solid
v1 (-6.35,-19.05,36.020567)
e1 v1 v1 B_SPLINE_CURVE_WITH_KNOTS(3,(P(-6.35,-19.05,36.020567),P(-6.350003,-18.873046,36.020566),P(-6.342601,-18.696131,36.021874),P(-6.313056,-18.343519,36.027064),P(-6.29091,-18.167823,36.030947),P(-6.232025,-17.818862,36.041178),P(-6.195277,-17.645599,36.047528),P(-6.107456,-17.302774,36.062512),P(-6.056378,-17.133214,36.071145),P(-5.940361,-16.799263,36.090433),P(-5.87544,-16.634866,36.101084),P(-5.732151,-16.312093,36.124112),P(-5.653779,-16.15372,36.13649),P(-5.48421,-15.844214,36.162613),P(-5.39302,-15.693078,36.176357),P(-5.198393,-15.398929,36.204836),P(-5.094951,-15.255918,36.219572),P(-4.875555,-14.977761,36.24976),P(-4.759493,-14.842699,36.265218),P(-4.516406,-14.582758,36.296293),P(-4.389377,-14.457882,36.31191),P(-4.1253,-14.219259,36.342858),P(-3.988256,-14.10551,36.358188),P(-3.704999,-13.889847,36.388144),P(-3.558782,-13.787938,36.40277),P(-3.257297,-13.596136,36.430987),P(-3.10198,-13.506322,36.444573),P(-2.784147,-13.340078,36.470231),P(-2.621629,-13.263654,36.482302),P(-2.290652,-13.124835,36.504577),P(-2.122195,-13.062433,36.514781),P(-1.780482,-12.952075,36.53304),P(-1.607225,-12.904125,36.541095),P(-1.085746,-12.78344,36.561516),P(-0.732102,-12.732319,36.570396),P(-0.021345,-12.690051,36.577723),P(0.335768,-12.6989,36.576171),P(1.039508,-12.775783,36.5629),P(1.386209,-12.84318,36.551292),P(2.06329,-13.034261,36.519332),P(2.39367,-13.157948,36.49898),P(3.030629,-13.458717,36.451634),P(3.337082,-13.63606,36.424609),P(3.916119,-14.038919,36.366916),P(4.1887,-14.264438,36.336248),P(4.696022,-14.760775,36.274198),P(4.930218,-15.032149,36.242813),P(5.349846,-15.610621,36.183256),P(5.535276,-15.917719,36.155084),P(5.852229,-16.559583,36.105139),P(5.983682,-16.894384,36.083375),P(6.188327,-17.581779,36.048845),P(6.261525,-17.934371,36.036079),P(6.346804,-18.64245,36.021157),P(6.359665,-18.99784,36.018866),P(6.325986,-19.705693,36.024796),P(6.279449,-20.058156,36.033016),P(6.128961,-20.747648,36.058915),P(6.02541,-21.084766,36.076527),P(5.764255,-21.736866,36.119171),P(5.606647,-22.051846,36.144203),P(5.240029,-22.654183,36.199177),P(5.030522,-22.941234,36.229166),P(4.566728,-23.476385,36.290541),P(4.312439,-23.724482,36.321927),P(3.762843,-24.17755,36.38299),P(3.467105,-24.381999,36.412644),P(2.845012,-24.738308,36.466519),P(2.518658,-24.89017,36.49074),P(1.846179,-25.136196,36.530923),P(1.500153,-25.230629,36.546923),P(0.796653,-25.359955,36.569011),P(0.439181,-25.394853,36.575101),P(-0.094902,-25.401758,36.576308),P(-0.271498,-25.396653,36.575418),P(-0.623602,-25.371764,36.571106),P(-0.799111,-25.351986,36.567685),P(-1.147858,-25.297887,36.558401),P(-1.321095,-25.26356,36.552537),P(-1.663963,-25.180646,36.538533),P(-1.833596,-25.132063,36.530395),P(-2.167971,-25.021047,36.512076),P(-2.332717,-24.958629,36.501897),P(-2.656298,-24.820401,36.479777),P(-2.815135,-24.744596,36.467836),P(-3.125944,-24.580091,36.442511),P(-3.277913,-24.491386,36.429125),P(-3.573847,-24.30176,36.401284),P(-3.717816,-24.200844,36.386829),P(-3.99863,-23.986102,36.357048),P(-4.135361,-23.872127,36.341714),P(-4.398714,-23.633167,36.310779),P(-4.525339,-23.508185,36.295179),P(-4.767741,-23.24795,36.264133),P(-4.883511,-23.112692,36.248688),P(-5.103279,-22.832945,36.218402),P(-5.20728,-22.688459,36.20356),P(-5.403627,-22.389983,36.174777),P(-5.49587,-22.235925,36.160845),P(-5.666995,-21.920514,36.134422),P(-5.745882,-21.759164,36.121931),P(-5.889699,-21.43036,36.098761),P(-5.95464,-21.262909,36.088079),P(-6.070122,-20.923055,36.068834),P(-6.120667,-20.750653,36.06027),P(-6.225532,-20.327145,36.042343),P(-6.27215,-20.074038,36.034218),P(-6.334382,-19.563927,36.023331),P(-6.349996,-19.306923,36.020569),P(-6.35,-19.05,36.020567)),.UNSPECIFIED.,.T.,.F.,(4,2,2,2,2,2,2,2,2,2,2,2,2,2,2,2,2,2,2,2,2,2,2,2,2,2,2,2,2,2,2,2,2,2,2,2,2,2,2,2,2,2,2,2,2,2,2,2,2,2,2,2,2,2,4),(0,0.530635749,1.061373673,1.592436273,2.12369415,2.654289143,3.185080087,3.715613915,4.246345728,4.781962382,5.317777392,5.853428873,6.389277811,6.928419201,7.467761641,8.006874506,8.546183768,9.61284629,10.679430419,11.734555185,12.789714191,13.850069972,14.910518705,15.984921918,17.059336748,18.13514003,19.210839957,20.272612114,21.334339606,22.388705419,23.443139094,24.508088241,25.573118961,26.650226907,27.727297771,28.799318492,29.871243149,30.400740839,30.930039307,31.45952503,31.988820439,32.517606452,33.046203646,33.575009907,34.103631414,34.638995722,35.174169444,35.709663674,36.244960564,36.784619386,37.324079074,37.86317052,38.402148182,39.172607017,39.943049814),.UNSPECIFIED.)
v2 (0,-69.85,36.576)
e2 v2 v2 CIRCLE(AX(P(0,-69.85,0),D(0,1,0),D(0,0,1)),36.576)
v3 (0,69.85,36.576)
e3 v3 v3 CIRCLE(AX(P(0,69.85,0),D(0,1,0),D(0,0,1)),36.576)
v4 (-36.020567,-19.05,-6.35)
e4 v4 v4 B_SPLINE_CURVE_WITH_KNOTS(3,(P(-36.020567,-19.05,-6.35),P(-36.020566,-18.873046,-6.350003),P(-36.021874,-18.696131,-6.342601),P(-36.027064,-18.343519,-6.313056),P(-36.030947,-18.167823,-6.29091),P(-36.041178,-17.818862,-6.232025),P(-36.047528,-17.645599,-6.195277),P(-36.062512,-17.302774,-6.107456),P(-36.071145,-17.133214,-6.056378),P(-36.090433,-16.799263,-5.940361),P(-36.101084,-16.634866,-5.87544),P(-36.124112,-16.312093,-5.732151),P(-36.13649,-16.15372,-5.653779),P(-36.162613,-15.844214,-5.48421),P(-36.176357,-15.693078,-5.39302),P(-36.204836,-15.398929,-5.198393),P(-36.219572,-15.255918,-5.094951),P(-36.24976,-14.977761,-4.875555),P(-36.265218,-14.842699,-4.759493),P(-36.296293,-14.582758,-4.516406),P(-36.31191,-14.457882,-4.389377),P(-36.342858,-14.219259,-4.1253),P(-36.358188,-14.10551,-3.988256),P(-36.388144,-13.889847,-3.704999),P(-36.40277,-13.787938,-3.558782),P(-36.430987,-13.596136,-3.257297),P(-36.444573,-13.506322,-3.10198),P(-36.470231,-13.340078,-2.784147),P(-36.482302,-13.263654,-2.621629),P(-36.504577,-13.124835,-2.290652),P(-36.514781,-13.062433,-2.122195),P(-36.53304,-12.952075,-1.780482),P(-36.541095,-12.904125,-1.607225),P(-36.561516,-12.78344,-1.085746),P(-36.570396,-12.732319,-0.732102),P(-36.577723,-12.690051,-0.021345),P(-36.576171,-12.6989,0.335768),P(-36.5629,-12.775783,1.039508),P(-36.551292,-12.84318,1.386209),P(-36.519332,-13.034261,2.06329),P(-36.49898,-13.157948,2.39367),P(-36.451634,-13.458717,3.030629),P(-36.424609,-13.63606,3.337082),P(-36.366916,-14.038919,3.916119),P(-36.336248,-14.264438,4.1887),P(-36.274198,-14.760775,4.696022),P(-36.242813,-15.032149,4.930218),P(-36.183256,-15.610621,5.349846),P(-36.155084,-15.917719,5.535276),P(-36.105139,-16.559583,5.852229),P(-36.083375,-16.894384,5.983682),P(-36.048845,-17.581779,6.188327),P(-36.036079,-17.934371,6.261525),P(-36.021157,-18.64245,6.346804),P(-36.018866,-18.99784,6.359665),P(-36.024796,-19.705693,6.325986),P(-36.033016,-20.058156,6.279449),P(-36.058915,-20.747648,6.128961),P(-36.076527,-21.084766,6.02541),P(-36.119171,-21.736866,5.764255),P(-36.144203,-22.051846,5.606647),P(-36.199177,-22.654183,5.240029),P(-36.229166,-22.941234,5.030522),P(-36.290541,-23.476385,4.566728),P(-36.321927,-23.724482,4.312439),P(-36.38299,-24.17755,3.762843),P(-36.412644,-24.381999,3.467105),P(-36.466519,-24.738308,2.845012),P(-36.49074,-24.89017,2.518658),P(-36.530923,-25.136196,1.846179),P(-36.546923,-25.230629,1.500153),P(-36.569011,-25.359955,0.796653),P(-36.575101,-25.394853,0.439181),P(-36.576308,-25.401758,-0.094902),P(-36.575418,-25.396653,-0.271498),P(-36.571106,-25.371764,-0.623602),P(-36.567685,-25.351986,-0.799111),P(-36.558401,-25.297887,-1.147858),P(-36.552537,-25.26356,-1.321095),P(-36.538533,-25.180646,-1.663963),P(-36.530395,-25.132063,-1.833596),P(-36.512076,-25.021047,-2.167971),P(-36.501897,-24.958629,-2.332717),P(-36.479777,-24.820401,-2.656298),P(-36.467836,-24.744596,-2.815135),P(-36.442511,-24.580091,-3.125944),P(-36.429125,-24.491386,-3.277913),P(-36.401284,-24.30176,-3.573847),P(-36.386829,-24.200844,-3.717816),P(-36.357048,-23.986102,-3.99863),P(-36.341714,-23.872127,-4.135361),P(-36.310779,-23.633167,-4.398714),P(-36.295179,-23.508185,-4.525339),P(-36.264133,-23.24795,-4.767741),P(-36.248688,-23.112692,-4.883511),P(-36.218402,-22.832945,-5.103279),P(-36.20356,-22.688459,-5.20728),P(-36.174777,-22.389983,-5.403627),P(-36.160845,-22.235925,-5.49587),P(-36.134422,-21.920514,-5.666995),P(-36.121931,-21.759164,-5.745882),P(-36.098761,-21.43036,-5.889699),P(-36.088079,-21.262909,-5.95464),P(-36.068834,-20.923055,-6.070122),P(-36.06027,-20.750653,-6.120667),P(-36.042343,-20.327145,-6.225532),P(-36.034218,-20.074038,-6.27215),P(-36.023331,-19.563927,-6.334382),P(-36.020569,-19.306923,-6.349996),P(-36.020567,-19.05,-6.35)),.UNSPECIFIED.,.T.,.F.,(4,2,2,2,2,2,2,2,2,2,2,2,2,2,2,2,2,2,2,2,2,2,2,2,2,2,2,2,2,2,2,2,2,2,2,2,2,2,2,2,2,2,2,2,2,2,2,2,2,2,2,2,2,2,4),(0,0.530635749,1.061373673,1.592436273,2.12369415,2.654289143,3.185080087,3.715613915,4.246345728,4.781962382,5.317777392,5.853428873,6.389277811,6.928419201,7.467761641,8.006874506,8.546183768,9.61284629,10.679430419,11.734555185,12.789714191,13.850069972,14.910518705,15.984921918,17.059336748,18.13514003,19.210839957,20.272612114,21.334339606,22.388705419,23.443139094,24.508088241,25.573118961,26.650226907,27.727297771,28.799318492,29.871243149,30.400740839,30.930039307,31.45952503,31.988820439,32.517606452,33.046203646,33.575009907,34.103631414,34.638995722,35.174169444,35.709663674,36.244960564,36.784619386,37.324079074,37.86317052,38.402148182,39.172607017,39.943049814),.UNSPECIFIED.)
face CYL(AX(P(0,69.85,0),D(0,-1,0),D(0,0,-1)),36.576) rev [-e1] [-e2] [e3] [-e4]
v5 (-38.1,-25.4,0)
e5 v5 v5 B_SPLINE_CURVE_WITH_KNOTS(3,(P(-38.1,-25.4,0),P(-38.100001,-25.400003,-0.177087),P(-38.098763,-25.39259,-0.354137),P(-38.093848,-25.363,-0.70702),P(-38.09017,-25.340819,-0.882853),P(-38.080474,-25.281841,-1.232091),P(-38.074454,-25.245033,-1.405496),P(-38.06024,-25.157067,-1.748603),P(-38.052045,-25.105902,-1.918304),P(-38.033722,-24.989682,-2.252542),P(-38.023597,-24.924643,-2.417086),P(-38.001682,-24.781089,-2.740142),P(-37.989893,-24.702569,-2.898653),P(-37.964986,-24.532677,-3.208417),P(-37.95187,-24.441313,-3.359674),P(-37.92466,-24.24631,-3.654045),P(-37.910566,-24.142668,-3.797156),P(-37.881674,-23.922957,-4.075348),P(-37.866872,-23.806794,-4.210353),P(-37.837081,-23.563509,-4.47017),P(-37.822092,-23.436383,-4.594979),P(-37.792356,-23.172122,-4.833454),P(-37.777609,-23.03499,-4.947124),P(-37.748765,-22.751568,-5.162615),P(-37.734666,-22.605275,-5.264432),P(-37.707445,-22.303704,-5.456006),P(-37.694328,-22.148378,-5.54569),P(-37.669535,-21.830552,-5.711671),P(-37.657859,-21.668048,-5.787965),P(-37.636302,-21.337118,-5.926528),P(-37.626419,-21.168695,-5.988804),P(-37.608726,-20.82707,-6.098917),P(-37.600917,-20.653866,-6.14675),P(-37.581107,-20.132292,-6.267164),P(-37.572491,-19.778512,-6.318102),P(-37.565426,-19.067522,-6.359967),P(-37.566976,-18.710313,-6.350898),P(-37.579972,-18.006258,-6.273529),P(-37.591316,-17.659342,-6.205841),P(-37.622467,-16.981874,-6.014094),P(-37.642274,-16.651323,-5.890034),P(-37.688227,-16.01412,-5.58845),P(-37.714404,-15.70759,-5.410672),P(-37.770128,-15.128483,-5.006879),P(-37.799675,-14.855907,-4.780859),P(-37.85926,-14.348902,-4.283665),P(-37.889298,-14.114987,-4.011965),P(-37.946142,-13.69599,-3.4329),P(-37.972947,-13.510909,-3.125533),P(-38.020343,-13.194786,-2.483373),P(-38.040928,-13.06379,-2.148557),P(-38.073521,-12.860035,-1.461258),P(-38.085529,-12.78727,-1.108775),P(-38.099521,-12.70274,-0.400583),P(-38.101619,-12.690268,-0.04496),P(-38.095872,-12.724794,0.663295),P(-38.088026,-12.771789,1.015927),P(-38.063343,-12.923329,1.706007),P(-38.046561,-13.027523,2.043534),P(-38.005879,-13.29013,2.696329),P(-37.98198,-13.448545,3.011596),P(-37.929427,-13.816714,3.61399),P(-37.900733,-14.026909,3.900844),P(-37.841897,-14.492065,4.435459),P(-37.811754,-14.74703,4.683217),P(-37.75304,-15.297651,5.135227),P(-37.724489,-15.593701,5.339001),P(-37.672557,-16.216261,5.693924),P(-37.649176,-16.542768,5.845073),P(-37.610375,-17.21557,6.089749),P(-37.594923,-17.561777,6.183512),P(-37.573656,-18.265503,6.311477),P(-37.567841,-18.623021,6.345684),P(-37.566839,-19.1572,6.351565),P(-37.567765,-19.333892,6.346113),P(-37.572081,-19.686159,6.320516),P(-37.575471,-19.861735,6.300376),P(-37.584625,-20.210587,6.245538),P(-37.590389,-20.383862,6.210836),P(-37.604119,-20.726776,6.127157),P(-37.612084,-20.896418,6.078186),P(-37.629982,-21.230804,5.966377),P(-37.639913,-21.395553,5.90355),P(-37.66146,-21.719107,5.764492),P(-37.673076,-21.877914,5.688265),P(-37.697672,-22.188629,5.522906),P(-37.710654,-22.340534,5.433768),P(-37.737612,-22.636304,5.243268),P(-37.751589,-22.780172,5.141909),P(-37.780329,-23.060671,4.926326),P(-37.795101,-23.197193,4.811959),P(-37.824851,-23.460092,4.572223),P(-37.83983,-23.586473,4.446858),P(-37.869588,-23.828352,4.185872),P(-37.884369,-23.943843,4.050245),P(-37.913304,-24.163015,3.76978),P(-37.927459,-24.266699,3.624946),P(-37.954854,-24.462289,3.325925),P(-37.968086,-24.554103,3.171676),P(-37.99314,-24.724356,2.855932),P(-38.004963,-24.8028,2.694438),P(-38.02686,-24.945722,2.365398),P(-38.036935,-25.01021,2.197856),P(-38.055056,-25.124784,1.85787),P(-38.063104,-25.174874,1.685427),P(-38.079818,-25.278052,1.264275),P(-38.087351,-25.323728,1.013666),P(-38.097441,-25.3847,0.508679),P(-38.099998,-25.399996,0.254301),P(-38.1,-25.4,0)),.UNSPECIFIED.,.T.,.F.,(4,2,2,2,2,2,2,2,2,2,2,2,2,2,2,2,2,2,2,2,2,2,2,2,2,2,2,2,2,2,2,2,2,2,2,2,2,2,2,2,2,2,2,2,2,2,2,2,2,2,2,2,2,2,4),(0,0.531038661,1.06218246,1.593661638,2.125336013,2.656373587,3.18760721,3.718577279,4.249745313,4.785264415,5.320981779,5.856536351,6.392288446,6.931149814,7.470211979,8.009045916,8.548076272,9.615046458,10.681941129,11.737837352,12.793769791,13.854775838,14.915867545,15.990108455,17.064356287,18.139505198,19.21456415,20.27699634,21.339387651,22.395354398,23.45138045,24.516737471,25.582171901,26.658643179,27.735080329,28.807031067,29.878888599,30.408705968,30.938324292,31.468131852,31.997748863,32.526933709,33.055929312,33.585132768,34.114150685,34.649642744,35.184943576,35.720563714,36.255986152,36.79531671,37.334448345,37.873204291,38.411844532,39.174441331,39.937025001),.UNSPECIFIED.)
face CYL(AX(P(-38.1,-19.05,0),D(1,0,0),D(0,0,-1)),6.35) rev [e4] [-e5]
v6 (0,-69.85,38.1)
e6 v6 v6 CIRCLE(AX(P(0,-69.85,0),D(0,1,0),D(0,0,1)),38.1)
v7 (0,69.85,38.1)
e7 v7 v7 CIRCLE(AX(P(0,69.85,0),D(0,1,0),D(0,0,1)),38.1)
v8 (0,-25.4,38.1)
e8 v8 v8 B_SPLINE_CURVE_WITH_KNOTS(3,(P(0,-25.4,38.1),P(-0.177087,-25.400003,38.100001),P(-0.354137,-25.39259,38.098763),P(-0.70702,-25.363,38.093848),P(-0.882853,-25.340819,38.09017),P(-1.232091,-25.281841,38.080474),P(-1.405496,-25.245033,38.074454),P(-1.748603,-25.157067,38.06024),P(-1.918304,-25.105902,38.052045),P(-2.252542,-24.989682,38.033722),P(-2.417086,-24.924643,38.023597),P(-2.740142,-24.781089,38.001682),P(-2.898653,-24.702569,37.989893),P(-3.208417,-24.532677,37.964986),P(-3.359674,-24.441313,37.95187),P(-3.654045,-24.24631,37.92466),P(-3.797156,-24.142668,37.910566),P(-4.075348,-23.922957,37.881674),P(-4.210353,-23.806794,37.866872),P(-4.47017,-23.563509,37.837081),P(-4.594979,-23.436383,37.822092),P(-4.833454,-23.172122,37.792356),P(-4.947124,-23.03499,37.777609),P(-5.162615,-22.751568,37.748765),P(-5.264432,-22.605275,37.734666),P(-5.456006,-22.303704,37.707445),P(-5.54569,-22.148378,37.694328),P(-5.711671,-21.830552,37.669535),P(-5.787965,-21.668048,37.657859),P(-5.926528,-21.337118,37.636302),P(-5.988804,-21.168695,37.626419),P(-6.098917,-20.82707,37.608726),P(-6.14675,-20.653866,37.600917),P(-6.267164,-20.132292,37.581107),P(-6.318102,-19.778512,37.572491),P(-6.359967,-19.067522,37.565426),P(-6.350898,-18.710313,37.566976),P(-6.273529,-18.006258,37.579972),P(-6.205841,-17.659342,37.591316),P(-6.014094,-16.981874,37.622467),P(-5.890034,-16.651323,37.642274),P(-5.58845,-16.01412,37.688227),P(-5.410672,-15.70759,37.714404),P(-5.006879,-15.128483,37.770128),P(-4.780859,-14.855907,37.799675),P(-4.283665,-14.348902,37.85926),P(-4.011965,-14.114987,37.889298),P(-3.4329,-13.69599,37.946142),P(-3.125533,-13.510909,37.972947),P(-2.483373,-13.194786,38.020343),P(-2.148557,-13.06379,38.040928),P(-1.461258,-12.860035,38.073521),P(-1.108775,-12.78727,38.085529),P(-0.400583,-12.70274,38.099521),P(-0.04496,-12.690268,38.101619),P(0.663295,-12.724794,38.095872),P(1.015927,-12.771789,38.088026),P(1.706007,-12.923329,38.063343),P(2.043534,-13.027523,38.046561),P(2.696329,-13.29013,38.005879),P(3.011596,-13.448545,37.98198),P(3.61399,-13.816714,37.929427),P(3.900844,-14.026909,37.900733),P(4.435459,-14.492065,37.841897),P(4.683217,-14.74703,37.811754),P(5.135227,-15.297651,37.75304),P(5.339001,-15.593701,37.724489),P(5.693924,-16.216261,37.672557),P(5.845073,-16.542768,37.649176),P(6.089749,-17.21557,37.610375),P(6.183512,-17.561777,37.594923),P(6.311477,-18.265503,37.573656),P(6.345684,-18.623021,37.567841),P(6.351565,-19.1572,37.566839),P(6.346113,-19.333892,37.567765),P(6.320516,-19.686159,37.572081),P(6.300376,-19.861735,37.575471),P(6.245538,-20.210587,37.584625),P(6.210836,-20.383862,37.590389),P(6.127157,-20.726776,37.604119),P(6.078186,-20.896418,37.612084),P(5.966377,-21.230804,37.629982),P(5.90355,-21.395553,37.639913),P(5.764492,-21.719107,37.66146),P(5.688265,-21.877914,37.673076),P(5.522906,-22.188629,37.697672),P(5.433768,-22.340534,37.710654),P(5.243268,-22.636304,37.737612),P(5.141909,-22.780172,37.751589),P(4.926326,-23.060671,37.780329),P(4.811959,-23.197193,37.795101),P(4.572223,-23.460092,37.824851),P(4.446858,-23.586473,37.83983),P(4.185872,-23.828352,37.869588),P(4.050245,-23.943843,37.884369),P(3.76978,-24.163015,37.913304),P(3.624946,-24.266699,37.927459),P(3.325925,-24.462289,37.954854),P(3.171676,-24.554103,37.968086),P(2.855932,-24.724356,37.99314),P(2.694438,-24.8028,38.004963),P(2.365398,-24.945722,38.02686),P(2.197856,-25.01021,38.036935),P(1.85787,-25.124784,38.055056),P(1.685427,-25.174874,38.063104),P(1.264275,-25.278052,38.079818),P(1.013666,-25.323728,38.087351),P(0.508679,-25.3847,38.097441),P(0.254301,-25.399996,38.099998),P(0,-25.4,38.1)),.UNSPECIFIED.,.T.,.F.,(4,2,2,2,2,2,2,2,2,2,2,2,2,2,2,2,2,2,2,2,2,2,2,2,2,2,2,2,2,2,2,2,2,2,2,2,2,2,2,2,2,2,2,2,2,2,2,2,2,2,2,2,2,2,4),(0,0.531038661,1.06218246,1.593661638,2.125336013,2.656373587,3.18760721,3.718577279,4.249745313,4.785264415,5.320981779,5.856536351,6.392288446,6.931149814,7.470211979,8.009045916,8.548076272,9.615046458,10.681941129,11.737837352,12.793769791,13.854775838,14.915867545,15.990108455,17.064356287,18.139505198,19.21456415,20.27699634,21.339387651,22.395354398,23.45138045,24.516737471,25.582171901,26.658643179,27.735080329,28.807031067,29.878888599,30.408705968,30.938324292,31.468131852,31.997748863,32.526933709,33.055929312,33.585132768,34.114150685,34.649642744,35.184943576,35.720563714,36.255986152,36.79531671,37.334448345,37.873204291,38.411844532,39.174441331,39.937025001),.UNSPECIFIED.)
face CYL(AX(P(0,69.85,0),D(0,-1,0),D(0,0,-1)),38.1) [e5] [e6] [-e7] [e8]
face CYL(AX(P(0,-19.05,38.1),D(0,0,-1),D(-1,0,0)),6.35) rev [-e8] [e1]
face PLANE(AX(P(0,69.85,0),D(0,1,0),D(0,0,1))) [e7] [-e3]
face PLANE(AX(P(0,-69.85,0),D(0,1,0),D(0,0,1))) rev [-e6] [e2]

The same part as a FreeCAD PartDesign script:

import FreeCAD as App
import Part
import Sketcher
Q = App.Units.Quantity

doc = App.newDocument("Part")
body = doc.addObject("PartDesign::Body", "Body")

# Sketch on XZ plane
sketch1 = body.newObject("Sketcher::SketchObject", "Sketch")
sketch1.AttachmentSupport = (doc.getObject("XZ_Plane"), [""])
sketch1.MapMode = "FlatFace"
sketch1.addGeometry([
    Part.Circle(App.Vector(0, 0, 0), App.Vector(0, 0, 1), 38),
    Part.Circle(App.Vector(0, 0, 0), App.Vector(0, 0, 1), 37),
], False)
sketch1.addConstraint([
    Sketcher.Constraint("Coincident", 0, 3, -1, 1),
    Sketcher.Constraint("Coincident", 1, 3, -1, 1),
    Sketcher.Constraint("Diameter", 0, Q("3 in")),
    Sketcher.Constraint("Diameter", 1, Q("2.88 in")),
])
pad1 = body.newObject("PartDesign::Pad", "Pad")
pad1.Profile = sketch1
pad1.Length = Q("5.5 in")
pad1.Midplane = True

# Sketch on YZ plane
sketch2 = body.newObject("Sketcher::SketchObject", "Sketch001")
sketch2.AttachmentSupport = (doc.getObject("YZ_Plane"), [""])
sketch2.MapMode = "FlatFace"
sketch2.addGeometry(Part.Circle(App.Vector(-19, 0, 0), App.Vector(0, 0, 1), 6), False)
sketch2.addConstraint([
    Sketcher.Constraint("PointOnObject", 0, 3, -1),
    Sketcher.Constraint("Diameter", 0, Q("0.5 in")),
    Sketcher.Constraint("DistanceX", 0, 3, -1, 1, Q("0.75 in")),
])
pocket1 = body.newObject("PartDesign::Pocket", "Pocket")
pocket1.Profile = sketch2
pocket1.Type = "ThroughAll"
doc.recompute()

polarpattern = body.newObject("PartDesign::PolarPattern", "PolarPattern")
polarpattern.Originals = [pocket1]
polarpattern.Axis = (doc.getObject("Y_Axis"), [""])
polarpattern.Angle = 90
polarpattern.Occurrences = 2
body.Tip = polarpattern

doc.recompute()
